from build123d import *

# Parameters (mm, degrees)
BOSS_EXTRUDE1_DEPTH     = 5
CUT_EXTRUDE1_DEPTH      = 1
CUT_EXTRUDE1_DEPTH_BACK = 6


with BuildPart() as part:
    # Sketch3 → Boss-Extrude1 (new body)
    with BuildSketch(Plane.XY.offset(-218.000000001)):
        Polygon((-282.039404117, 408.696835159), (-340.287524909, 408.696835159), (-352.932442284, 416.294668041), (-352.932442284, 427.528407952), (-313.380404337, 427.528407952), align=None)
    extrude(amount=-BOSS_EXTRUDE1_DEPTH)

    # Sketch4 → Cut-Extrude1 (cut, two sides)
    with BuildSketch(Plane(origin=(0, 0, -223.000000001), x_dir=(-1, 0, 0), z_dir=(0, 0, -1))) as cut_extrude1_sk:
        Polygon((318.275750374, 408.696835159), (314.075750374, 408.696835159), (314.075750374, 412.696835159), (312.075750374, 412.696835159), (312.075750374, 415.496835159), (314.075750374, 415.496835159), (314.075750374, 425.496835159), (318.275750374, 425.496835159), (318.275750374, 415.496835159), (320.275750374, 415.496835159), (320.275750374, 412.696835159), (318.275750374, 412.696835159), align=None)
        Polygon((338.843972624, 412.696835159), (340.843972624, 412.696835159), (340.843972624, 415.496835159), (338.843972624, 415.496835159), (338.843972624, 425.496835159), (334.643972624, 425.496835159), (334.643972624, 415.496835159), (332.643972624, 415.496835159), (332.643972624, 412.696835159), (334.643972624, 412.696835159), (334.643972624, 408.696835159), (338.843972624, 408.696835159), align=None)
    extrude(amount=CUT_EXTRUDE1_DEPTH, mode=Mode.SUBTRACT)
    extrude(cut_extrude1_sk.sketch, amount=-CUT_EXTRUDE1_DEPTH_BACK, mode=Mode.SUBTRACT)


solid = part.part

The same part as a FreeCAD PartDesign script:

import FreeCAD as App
import Part
import Sketcher
from FreeCAD import Vector
Q = App.Units.Quantity


def add_polygon(sketch, points):
    """Adds a closed chain of lines whose ends are joined by coincident constraints."""
    first, n = sketch.GeometryCount, len(points)
    for a, b in zip(points, points[1:] + points[:1]):
        sketch.addGeometry(Part.LineSegment(App.Vector(*a, 0), App.Vector(*b, 0)), False)
    for i in range(n):
        sketch.addConstraint(Sketcher.Constraint("Coincident", first + i, 2, first + (i + 1) % n, 1))

doc = App.newDocument("Part")
params = doc.addObject("Spreadsheet::Sheet", "Params")
for row, (alias, value) in enumerate([
    ("pad1_length", "5 mm"),
    ("sketch2_width", "2 mm"),
    ("sketch2_height", "4 mm"),
    ("sketch2_height2", "10 mm"),
    ("sketch2_width2", "4.2 mm"),
    ("sketch2_height3", "2.8 mm"),
], start=1):
    params.set(f"A{row}", alias)
    params.set(f"B{row}", "=" + value)
    params.setAlias(f"B{row}", alias)

body = doc.addObject("PartDesign::Body", "Body")

sketch1 = body.newObject("Sketcher::SketchObject", "Sketch")
sketch1.AttachmentSupport = (doc.getObject("XY_Plane"), [""])
sketch1.MapMode = "FlatFace"
sketch1.AttachmentOffset = App.Placement(Vector(0, 0, -218), App.Rotation())
add_polygon(sketch1, [(-340, 409), (-282, 409), (-313, 428), (-353, 428), (-353, 416)])
sketch1.addConstraint(Sketcher.Constraint("Horizontal", 0))
sketch1.addConstraint(Sketcher.Constraint("Horizontal", 2))
sketch1.addConstraint(Sketcher.Constraint("Vertical", 3))
sketch1.addConstraint(Sketcher.Constraint("Parallel", 1, 4))
sketch1.addConstraint(Sketcher.Constraint("Angle", 1, Q("149 deg")))
sketch1.addConstraint(Sketcher.Constraint("DistanceX", 1, 2, 0, 2, Q("31.341 mm")))
sketch1.addConstraint(Sketcher.Constraint("DistanceX", 0, 1, 0, 2, Q("58.248121 mm")))
sketch1.addConstraint(Sketcher.Constraint("DistanceY", 3, 2, 3, 1, Q("11.23374 mm")))
sketch1.addConstraint(Sketcher.Constraint("DistanceY", -1, 1, 3, 2, Q("416.294668 mm")))
sketch1.addConstraint(Sketcher.Constraint("DistanceX", 0, 2, -1, 1, Q("282.039404 mm")))
pad1 = body.newObject("PartDesign::Pad", "Pad")
pad1.Profile = sketch1
pad1.setExpression("Length", "Params.pad1_length")
pad1.Reversed = True

sketch2 = body.newObject("Sketcher::SketchObject", "Sketch001")
sketch2.AttachmentSupport = (doc.getObject("XY_Plane"), [""])
sketch2.MapMode = "FlatFace"
sketch2.AttachmentOffset = App.Placement(Vector(0, 0, -223), App.Rotation())
add_polygon(sketch2, [(-314.1, 408.7), (-318.3, 408.7), (-318.3, 412.7), (-320.3, 412.7), (-320.3, 415.5), (-318.3, 415.5), (-318.3, 425.5), (-314.1, 425.5), (-314.1, 415.5), (-312.1, 415.5), (-312.1, 412.7), (-314.1, 412.7)])
add_polygon(sketch2, [(-338.8, 412.7), (-340.8, 412.7), (-340.8, 415.5), (-338.8, 415.5), (-338.8, 425.5), (-334.6, 425.5), (-334.6, 415.5), (-332.6, 415.5), (-332.6, 412.7), (-334.6, 412.7), (-334.6, 408.7), (-338.8, 408.7)])
sketch2.addConstraint(Sketcher.Constraint("Horizontal", 0))
sketch2.addConstraint(Sketcher.Constraint("Vertical", 1))
sketch2.addConstraint(Sketcher.Constraint("Horizontal", 2))
sketch2.addConstraint(Sketcher.Constraint("Vertical", 3))
sketch2.addConstraint(Sketcher.Constraint("Horizontal", 4))
sketch2.addConstraint(Sketcher.Constraint("Vertical", 5))
sketch2.addConstraint(Sketcher.Constraint("Horizontal", 6))
sketch2.addConstraint(Sketcher.Constraint("Vertical", 7))
sketch2.addConstraint(Sketcher.Constraint("Horizontal", 8))
sketch2.addConstraint(Sketcher.Constraint("Vertical", 9))
sketch2.addConstraint(Sketcher.Constraint("Horizontal", 10))
sketch2.addConstraint(Sketcher.Constraint("Vertical", 11))
sketch2.addConstraint(Sketcher.Constraint("Horizontal", 12))
sketch2.addConstraint(Sketcher.Constraint("Vertical", 13))
sketch2.addConstraint(Sketcher.Constraint("Horizontal", 14))
sketch2.addConstraint(Sketcher.Constraint("Vertical", 15))
sketch2.addConstraint(Sketcher.Constraint("Horizontal", 16))
sketch2.addConstraint(Sketcher.Constraint("Vertical", 17))
sketch2.addConstraint(Sketcher.Constraint("Horizontal", 18))
sketch2.addConstraint(Sketcher.Constraint("Vertical", 19))
sketch2.addConstraint(Sketcher.Constraint("Horizontal", 20))
sketch2.addConstraint(Sketcher.Constraint("Vertical", 21))
sketch2.addConstraint(Sketcher.Constraint("Horizontal", 22))
sketch2.addConstraint(Sketcher.Constraint("Vertical", 23))
sketch2.addConstraint(Sketcher.Constraint("Horizontal", 4, 2, 7, 2))
sketch2.addConstraint(Sketcher.Constraint("Horizontal", 2, 2, 9, 2))
sketch2.addConstraint(Sketcher.Constraint("Horizontal", 10, 2, 12, 2))
sketch2.addConstraint(Sketcher.Constraint("Horizontal", 8, 2, 13, 2))
sketch2.addConstraint(Sketcher.Constraint("Horizontal", 6, 2, 15, 2))
sketch2.addConstraint(Sketcher.Constraint("Horizontal", 14, 2, 17, 2))
sketch2.addConstraint(Sketcher.Constraint("Horizontal", 12, 2, 19, 2))
sketch2.addConstraint(Sketcher.Constraint("Horizontal", 11, 2, 21, 2))
sketch2.addConstraint(Sketcher.Constraint("Vertical", 1, 2, 4, 2))
sketch2.addConstraint(Sketcher.Constraint("Vertical", 7, 2, 10, 2))
sketch2.addConstraint(Sketcher.Constraint("Vertical", 17, 2, 20, 2))
sketch2.addConstraint(Sketcher.Constraint("Vertical", 15, 2, 22, 2))
sketch2.addConstraint(Sketcher.Constraint("Equal", 4, 8))
sketch2.addConstraint(Sketcher.Constraint("Equal", 10, 12))
sketch2.addConstraint(Sketcher.Constraint("Equal", 6, 16))
sketch2.addConstraint(Sketcher.Constraint("Equal", 14, 18))
sketch2.addConstraint(Sketcher.Constraint("DistanceX", 2, 2, 2, 1, Q("2 mm")))
sketch2.addConstraint(Sketcher.Constraint("DistanceY", 1, 1, 1, 2, Q("4 mm")))
sketch2.addConstraint(Sketcher.Constraint("DistanceY", 5, 1, 5, 2, Q("10 mm")))
sketch2.addConstraint(Sketcher.Constraint("DistanceX", 0, 2, 0, 1, Q("4.2 mm")))
sketch2.addConstraint(Sketcher.Constraint("DistanceY", 3, 1, 3, 2, Q("2.8 mm")))
sketch2.addConstraint(Sketcher.Constraint("DistanceX", 0, 2, -1, 1, Q("318.27575 mm")))
sketch2.addConstraint(Sketcher.Constraint("DistanceY", -1, 1, 0, 2, Q("408.696835 mm")))
sketch2.addConstraint(Sketcher.Constraint("DistanceX", 12, 2, -1, 1, Q("340.843973 mm")))
sketch2.setExpression("Constraints[64]", "Params.sketch2_width")
sketch2.setExpression("Constraints[65]", "Params.sketch2_height")
sketch2.setExpression("Constraints[66]", "Params.sketch2_height2")
sketch2.setExpression("Constraints[67]", "Params.sketch2_width2")
sketch2.setExpression("Constraints[68]", "Params.sketch2_height3")
pocket1 = body.newObject("PartDesign::Pocket", "Pocket")
pocket1.Profile = sketch2
pocket1.Type = "ThroughAll"
pocket1.Midplane = True

doc.recompute()
